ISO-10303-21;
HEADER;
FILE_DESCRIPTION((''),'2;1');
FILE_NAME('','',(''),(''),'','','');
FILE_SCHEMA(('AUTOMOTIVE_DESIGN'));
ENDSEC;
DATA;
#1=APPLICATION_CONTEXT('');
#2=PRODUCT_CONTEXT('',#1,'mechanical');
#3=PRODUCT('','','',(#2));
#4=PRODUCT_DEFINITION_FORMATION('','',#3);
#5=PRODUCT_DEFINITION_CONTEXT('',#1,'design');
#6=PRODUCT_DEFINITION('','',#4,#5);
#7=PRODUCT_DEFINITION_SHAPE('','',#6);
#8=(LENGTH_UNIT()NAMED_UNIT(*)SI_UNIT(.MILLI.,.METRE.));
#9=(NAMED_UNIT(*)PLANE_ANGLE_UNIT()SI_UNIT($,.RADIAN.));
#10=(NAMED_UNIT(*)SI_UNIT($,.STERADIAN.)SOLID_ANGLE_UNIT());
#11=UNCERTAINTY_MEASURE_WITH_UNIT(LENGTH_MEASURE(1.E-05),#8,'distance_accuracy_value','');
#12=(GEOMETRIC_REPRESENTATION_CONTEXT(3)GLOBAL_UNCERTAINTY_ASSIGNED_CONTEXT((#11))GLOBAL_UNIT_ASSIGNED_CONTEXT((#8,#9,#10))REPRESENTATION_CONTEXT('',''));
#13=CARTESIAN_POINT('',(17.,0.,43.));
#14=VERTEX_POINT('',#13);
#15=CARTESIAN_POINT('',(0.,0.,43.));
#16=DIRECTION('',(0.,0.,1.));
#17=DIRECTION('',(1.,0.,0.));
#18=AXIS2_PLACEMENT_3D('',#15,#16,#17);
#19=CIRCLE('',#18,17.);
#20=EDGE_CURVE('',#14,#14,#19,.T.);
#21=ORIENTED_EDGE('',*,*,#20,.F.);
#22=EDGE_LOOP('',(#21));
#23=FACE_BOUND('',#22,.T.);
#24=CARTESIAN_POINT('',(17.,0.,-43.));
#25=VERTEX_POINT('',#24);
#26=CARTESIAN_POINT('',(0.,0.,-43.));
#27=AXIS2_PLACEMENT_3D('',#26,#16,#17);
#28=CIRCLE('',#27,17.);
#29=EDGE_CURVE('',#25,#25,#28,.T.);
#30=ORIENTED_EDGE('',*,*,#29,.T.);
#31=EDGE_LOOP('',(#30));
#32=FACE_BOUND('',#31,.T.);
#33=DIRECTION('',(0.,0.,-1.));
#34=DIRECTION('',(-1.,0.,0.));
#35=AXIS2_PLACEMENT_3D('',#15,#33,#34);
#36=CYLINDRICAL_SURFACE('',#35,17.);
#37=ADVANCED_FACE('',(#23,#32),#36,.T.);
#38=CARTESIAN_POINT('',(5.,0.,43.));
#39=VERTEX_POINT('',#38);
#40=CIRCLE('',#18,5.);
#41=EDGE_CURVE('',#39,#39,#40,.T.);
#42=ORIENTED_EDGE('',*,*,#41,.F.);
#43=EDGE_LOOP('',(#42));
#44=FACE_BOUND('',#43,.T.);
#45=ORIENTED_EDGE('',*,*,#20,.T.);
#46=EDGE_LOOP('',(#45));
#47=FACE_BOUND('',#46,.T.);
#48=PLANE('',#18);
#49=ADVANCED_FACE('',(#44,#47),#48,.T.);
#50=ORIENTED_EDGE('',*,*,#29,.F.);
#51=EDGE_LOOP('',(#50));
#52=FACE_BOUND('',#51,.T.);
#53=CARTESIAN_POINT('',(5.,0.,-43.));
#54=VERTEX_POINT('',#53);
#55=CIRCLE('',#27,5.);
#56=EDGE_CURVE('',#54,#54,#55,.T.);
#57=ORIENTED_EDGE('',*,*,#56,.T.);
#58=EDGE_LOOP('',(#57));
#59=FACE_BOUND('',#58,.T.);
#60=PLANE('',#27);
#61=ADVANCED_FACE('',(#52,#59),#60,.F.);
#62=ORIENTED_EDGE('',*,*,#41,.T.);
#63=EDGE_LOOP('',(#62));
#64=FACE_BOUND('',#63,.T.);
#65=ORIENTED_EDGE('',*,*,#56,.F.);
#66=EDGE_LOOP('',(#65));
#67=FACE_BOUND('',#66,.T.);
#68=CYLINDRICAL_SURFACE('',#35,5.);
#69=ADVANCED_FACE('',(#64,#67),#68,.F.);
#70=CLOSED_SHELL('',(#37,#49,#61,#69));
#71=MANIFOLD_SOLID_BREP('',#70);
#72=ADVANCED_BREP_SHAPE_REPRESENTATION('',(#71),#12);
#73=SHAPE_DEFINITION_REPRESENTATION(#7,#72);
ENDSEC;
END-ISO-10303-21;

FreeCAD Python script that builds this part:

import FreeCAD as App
import Part
import Sketcher

V = App.Vector

doc = App.newDocument("Part")
params = doc.addObject("Spreadsheet::Sheet", "Params")
for row, (alias, value) in enumerate([
    ("sketch1_diameter", "34 mm"),
    ("sketch1_diameter2", "10 mm"),
    ("pad1_length", "86 mm"),
], start=1):
    params.set(f"A{row}", alias)
    params.set(f"B{row}", "=" + value)
    params.setAlias(f"B{row}", alias)

body = doc.addObject("PartDesign::Body", "Body")

sketch1 = body.newObject("Sketcher::SketchObject", "Sketch")
sketch1.AttachmentSupport = (doc.getObject("XY_Plane"), [""])
sketch1.MapMode = "FlatFace"
sketch1.addGeometry(Part.Circle(V(0, 0, 0), V(0, 0, 1), 17), False)
sketch1.addGeometry(Part.Circle(V(0, 0, 0), V(0, 0, 1), 5), False)
sketch1.addConstraint(Sketcher.Constraint("Coincident", 0, 3, -1, 1))
sketch1.addConstraint(Sketcher.Constraint("Coincident", 1, 3, -1, 1))
sketch1.addConstraint(Sketcher.Constraint("Diameter", 0, 34.0))
sketch1.addConstraint(Sketcher.Constraint("Diameter", 1, 10.0))
sketch1.setExpression("Constraints[2]", "Params.sketch1_diameter")
sketch1.setExpression("Constraints[3]", "Params.sketch1_diameter2")
pad1 = body.newObject("PartDesign::Pad", "Pad")
pad1.Profile = sketch1
pad1.setExpression("Length", "Params.pad1_length")
pad1.Midplane = True

doc.recompute()
